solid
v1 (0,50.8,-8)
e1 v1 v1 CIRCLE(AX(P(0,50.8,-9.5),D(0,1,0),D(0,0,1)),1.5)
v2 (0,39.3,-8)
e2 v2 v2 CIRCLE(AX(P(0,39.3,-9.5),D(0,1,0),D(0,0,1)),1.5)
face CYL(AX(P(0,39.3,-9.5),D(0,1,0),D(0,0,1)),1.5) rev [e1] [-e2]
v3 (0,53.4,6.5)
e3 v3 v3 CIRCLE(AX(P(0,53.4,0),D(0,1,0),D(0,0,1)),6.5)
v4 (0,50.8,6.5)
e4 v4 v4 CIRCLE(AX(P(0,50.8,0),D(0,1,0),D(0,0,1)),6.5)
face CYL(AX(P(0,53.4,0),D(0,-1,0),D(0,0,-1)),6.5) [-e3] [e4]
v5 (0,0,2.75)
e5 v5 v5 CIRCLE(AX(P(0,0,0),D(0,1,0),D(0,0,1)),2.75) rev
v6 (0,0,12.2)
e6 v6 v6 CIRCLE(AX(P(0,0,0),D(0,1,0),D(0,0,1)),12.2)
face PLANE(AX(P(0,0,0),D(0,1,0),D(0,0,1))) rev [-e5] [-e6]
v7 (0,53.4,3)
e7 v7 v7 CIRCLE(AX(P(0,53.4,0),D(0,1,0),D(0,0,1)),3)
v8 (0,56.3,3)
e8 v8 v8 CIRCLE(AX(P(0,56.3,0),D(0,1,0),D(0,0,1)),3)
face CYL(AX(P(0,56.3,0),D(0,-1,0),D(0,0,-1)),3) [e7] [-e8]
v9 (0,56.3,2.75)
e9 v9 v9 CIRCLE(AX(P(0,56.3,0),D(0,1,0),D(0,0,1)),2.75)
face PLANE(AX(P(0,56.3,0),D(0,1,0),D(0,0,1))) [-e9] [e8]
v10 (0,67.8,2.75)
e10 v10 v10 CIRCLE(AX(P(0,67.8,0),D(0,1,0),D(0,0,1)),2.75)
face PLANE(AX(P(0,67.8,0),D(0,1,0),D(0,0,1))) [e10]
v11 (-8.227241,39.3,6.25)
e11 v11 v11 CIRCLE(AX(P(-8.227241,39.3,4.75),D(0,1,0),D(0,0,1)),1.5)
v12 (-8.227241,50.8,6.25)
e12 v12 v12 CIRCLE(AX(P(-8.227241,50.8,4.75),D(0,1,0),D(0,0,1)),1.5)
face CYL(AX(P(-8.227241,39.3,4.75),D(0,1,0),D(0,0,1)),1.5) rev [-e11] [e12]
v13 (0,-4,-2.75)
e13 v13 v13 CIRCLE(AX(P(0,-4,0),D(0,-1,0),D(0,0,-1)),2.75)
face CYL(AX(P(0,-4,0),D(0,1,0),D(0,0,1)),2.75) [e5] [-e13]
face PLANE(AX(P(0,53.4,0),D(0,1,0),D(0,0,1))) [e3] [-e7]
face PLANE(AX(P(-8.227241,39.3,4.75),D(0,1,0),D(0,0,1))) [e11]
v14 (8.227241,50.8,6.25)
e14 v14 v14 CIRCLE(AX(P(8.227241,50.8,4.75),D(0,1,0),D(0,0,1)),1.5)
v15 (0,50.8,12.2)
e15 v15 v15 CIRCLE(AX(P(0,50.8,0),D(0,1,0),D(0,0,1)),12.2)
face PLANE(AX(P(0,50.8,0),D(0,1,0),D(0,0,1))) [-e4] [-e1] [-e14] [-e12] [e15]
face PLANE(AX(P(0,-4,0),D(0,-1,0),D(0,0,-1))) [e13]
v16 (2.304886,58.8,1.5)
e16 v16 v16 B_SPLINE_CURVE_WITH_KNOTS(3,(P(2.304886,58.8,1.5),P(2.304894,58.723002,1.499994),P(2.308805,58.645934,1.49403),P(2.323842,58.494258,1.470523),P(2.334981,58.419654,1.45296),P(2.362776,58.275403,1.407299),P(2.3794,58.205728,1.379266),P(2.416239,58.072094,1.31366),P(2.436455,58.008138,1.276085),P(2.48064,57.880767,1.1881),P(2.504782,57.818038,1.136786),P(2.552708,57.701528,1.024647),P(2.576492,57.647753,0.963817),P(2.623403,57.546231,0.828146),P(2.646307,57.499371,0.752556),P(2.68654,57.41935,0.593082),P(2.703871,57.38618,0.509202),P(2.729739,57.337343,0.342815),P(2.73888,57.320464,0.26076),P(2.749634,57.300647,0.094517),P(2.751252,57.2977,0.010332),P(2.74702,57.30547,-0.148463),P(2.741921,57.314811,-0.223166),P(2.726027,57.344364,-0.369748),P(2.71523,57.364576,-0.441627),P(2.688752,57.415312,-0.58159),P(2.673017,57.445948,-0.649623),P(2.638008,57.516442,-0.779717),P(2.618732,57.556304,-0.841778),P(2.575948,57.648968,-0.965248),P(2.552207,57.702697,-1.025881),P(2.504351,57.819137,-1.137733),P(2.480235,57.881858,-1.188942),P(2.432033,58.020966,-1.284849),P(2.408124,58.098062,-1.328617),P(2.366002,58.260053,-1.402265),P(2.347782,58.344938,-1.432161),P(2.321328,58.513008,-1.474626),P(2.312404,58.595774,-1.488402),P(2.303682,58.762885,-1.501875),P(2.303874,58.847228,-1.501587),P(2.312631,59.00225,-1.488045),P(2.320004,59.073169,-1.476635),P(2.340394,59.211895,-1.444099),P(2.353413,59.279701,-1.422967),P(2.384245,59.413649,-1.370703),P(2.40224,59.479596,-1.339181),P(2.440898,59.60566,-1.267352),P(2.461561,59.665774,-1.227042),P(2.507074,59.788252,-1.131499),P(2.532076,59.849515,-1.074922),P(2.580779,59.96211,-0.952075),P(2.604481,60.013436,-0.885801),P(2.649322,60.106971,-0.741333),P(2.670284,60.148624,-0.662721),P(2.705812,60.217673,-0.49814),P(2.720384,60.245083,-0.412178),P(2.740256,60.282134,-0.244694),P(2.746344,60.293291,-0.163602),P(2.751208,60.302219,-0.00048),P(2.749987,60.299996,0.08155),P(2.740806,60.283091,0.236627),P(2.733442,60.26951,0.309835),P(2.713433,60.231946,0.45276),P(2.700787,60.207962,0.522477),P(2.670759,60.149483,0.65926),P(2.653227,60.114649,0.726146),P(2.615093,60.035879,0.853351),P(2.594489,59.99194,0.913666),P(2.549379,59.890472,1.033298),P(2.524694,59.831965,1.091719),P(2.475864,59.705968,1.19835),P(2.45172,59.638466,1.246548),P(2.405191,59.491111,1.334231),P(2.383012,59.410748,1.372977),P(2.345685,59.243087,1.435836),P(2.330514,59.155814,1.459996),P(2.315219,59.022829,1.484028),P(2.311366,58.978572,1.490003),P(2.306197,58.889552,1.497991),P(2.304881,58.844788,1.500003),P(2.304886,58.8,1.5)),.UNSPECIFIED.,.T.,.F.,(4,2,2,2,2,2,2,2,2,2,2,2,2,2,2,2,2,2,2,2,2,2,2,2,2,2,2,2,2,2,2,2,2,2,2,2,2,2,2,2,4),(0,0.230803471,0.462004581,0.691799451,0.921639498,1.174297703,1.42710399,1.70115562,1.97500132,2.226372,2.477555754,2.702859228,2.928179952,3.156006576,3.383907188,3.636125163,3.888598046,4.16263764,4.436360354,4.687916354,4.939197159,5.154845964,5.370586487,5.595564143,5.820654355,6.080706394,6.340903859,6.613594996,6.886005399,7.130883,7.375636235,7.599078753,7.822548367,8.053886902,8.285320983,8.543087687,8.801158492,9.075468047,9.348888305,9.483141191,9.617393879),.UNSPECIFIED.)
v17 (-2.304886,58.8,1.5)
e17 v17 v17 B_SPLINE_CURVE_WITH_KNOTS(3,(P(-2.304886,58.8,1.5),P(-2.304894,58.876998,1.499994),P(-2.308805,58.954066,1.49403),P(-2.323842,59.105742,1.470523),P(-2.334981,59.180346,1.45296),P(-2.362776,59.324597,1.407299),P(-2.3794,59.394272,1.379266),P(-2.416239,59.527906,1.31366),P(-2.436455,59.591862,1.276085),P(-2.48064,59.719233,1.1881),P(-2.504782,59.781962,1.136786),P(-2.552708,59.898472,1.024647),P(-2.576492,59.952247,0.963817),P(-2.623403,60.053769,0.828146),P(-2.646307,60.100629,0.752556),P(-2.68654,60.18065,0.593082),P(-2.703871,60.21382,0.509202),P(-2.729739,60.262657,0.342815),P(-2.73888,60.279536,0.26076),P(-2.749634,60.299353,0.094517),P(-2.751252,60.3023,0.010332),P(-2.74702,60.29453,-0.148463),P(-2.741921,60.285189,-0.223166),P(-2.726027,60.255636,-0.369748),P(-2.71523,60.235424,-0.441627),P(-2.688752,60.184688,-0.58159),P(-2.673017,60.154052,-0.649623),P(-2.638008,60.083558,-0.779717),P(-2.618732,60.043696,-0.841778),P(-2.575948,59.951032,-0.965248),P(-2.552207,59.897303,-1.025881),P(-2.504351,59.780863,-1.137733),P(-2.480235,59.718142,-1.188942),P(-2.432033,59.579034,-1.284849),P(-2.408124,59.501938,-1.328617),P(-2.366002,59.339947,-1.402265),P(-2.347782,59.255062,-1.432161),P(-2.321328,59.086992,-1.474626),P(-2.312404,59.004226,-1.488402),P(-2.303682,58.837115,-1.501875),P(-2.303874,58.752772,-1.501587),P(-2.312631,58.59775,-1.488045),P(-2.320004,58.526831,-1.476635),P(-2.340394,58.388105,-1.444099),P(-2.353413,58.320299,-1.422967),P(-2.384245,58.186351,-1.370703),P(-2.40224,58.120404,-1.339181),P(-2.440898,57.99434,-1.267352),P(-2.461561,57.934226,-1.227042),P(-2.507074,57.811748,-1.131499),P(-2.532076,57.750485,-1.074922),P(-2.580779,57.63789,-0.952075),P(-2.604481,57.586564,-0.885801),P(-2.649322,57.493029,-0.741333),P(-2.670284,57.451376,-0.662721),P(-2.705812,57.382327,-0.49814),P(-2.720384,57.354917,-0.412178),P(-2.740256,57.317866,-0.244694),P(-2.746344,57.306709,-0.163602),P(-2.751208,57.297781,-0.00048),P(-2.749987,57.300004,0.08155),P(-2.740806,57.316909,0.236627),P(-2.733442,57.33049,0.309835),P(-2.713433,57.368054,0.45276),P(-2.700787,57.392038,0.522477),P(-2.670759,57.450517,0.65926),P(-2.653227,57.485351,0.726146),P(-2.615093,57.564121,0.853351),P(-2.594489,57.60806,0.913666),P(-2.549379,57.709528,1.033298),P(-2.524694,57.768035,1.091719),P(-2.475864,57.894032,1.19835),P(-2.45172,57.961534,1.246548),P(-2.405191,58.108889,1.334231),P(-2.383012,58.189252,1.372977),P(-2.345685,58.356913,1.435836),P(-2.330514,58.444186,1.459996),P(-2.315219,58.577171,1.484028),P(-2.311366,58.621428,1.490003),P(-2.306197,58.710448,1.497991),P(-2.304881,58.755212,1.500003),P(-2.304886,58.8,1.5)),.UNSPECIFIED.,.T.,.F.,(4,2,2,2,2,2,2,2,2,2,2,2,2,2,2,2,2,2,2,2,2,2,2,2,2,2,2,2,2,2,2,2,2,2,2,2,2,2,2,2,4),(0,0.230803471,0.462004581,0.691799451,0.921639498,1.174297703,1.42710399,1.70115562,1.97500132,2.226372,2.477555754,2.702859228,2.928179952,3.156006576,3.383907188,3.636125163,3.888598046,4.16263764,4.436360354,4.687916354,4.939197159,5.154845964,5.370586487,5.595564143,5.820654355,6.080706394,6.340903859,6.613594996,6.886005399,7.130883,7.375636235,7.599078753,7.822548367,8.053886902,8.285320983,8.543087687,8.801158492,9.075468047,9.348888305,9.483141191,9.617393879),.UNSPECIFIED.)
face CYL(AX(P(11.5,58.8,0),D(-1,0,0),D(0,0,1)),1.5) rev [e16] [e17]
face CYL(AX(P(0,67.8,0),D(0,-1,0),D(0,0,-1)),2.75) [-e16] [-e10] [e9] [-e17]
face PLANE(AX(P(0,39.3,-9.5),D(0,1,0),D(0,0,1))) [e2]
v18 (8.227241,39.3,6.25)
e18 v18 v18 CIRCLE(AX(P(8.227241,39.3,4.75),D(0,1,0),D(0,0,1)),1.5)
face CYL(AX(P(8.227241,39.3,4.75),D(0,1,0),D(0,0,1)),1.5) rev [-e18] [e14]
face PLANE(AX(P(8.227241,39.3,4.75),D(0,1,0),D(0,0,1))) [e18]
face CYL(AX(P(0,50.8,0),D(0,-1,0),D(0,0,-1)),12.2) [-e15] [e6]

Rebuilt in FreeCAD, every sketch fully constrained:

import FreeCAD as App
import Part
import Sketcher

doc = App.newDocument("Part")
params = doc.addObject("Spreadsheet::Sheet", "Params")
for row, (alias, value) in enumerate([
    ("sketch1_diameter", "24.4 mm"),
    ("pad1_length", "50.8 mm"),
    ("sketch2_diameter", "5.5 mm"),
    ("pad2_length", "4 mm"),
    ("sketch3_diameter", "13 mm"),
    ("pad3_length", "2.6 mm"),
    ("sketch4_diameter", "6 mm"),
    ("pad4_length", "2.9 mm"),
    ("sketch5_diameter", "5.5 mm"),
    ("pad5_length", "11.5 mm"),
    ("sketch6_diameter", "3 mm"),
    ("sketch7_diameter", "3 mm"),
    ("pocket2_length", "11.5 mm"),
], start=1):
    params.set(f"A{row}", alias)
    params.set(f"B{row}", "=" + value)
    params.setAlias(f"B{row}", alias)

body = doc.addObject("PartDesign::Body", "Body")

sketch1 = doc.addObject("Sketcher::SketchObject", "Sketch")
body.addObject(sketch1)
sketch1.AttachmentSupport = (doc.XZ_Plane, [""])
sketch1.MapMode = "FlatFace"
sketch1.addGeometry(Part.Circle(App.Vector(0, 0, 0), App.Vector(0, 0, 1), 12), False)
sketch1.addConstraint([
    Sketcher.Constraint("Coincident", 0, 3, -1, 1),
    Sketcher.Constraint("Diameter", 0, 24.4),
])
sketch1.setExpression("Constraints[1]", "Params.sketch1_diameter")
pad1 = doc.addObject("PartDesign::Pad", "Pad")
body.addObject(pad1)
pad1.Profile = sketch1
pad1.setExpression("Length", "Params.pad1_length")
pad1.Reversed = True

sketch2 = doc.addObject("Sketcher::SketchObject", "Sketch001")
body.addObject(sketch2)
sketch2.AttachmentSupport = (doc.XZ_Plane, [""])
sketch2.MapMode = "FlatFace"
sketch2.addGeometry(Part.Circle(App.Vector(0, 0, 0), App.Vector(0, 0, 1), 2.8), False)
sketch2.addConstraint([
    Sketcher.Constraint("Coincident", 0, 3, -1, 1),
    Sketcher.Constraint("Diameter", 0, 5.5),
])
sketch2.setExpression("Constraints[1]", "Params.sketch2_diameter")
pad2 = doc.addObject("PartDesign::Pad", "Pad001")
body.addObject(pad2)
pad2.Profile = sketch2
pad2.setExpression("Length", "Params.pad2_length")

sketch3 = doc.addObject("Sketcher::SketchObject", "Sketch002")
body.addObject(sketch3)
sketch3.AttachmentSupport = (doc.XZ_Plane, [""])
sketch3.MapMode = "FlatFace"
sketch3.AttachmentOffset = App.Placement(App.Vector(0, 0, -50.8), App.Rotation())
sketch3.addGeometry(Part.Circle(App.Vector(0, 0, 0), App.Vector(0, 0, 1), 6), False)
sketch3.addConstraint([
    Sketcher.Constraint("Coincident", 0, 3, -1, 1),
    Sketcher.Constraint("Diameter", 0, 13.0),
])
sketch3.setExpression("Constraints[1]", "Params.sketch3_diameter")
pad3 = doc.addObject("PartDesign::Pad", "Pad002")
body.addObject(pad3)
pad3.Profile = sketch3
pad3.setExpression("Length", "Params.pad3_length")
pad3.Reversed = True

sketch4 = doc.addObject("Sketcher::SketchObject", "Sketch003")
body.addObject(sketch4)
sketch4.AttachmentSupport = (doc.XZ_Plane, [""])
sketch4.MapMode = "FlatFace"
sketch4.AttachmentOffset = App.Placement(App.Vector(0, 0, -53.4), App.Rotation())
sketch4.addGeometry(Part.Circle(App.Vector(0, 0, 0), App.Vector(0, 0, 1), 3), False)
sketch4.addConstraint([
    Sketcher.Constraint("Coincident", 0, 3, -1, 1),
    Sketcher.Constraint("Diameter", 0, 6.0),
])
sketch4.setExpression("Constraints[1]", "Params.sketch4_diameter")
pad4 = doc.addObject("PartDesign::Pad", "Pad003")
body.addObject(pad4)
pad4.Profile = sketch4
pad4.setExpression("Length", "Params.pad4_length")
pad4.Reversed = True

sketch5 = doc.addObject("Sketcher::SketchObject", "Sketch004")
body.addObject(sketch5)
sketch5.AttachmentSupport = (doc.XZ_Plane, [""])
sketch5.MapMode = "FlatFace"
sketch5.AttachmentOffset = App.Placement(App.Vector(0, 0, -67.8), App.Rotation())
sketch5.addGeometry(Part.Circle(App.Vector(0, 0, 0), App.Vector(0, 0, 1), 2.8), False)
sketch5.addConstraint([
    Sketcher.Constraint("Coincident", 0, 3, -1, 1),
    Sketcher.Constraint("Diameter", 0, 5.5),
])
sketch5.setExpression("Constraints[1]", "Params.sketch5_diameter")
pad5 = doc.addObject("PartDesign::Pad", "Pad004")
body.addObject(pad5)
pad5.Profile = sketch5
pad5.setExpression("Length", "Params.pad5_length")

sketch6 = doc.addObject("Sketcher::SketchObject", "Sketch005")
body.addObject(sketch6)
sketch6.AttachmentSupport = (doc.YZ_Plane, [""])
sketch6.MapMode = "FlatFace"
sketch6.addGeometry(Part.Circle(App.Vector(58.8, 0, 0), App.Vector(0, 0, 1), 1.5), False)
sketch6.addConstraint([
    Sketcher.Constraint("PointOnObject", 0, 3, -1),
    Sketcher.Constraint("Diameter", 0, 3.0),
    Sketcher.Constraint("DistanceX", -1, 1, 0, 3, 58.8),
])
sketch6.setExpression("Constraints[1]", "Params.sketch6_diameter")
pocket1 = doc.addObject("PartDesign::Pocket", "Pocket")
body.addObject(pocket1)
pocket1.Profile = sketch6
pocket1.Type = "ThroughAll"
pocket1.Midplane = True

sketch7 = doc.addObject("Sketcher::SketchObject", "Sketch006")
body.addObject(sketch7)
sketch7.AttachmentSupport = (doc.XZ_Plane, [""])
sketch7.MapMode = "FlatFace"
sketch7.AttachmentOffset = App.Placement(App.Vector(0, 0, -50.8), App.Rotation())
sketch7.addGeometry([
    Part.Circle(App.Vector(0, -9.5, 0), App.Vector(0, 0, 1), 1.5),
    Part.Circle(App.Vector(8.2, 4.8, 0), App.Vector(0, 0, 1), 1.5),
    Part.Circle(App.Vector(-8.2, 4.8, 0), App.Vector(0, 0, 1), 1.5),
], False)
sketch7.addConstraint([
    Sketcher.Constraint("Equal", 0, 1),
    Sketcher.Constraint("Equal", 1, 2),
    Sketcher.Constraint("Symmetric", 1, 3, 2, 3, -2),
    Sketcher.Constraint("PointOnObject", 0, 3, -2),
    Sketcher.Constraint("Diameter", 0, 3.0),
    Sketcher.Constraint("DistanceY", 0, 3, -1, 1, 9.5),
    Sketcher.Constraint("DistanceY", -1, 1, 1, 3, 4.75),
    Sketcher.Constraint("DistanceX", -1, 1, 1, 3, 8.227241),
])
sketch7.setExpression("Constraints[4]", "Params.sketch7_diameter")
pocket2 = doc.addObject("PartDesign::Pocket", "Pocket001")
body.addObject(pocket2)
pocket2.Profile = sketch7
pocket2.setExpression("Length", "Params.pocket2_length")
pocket2.Reversed = True

doc.recompute()
